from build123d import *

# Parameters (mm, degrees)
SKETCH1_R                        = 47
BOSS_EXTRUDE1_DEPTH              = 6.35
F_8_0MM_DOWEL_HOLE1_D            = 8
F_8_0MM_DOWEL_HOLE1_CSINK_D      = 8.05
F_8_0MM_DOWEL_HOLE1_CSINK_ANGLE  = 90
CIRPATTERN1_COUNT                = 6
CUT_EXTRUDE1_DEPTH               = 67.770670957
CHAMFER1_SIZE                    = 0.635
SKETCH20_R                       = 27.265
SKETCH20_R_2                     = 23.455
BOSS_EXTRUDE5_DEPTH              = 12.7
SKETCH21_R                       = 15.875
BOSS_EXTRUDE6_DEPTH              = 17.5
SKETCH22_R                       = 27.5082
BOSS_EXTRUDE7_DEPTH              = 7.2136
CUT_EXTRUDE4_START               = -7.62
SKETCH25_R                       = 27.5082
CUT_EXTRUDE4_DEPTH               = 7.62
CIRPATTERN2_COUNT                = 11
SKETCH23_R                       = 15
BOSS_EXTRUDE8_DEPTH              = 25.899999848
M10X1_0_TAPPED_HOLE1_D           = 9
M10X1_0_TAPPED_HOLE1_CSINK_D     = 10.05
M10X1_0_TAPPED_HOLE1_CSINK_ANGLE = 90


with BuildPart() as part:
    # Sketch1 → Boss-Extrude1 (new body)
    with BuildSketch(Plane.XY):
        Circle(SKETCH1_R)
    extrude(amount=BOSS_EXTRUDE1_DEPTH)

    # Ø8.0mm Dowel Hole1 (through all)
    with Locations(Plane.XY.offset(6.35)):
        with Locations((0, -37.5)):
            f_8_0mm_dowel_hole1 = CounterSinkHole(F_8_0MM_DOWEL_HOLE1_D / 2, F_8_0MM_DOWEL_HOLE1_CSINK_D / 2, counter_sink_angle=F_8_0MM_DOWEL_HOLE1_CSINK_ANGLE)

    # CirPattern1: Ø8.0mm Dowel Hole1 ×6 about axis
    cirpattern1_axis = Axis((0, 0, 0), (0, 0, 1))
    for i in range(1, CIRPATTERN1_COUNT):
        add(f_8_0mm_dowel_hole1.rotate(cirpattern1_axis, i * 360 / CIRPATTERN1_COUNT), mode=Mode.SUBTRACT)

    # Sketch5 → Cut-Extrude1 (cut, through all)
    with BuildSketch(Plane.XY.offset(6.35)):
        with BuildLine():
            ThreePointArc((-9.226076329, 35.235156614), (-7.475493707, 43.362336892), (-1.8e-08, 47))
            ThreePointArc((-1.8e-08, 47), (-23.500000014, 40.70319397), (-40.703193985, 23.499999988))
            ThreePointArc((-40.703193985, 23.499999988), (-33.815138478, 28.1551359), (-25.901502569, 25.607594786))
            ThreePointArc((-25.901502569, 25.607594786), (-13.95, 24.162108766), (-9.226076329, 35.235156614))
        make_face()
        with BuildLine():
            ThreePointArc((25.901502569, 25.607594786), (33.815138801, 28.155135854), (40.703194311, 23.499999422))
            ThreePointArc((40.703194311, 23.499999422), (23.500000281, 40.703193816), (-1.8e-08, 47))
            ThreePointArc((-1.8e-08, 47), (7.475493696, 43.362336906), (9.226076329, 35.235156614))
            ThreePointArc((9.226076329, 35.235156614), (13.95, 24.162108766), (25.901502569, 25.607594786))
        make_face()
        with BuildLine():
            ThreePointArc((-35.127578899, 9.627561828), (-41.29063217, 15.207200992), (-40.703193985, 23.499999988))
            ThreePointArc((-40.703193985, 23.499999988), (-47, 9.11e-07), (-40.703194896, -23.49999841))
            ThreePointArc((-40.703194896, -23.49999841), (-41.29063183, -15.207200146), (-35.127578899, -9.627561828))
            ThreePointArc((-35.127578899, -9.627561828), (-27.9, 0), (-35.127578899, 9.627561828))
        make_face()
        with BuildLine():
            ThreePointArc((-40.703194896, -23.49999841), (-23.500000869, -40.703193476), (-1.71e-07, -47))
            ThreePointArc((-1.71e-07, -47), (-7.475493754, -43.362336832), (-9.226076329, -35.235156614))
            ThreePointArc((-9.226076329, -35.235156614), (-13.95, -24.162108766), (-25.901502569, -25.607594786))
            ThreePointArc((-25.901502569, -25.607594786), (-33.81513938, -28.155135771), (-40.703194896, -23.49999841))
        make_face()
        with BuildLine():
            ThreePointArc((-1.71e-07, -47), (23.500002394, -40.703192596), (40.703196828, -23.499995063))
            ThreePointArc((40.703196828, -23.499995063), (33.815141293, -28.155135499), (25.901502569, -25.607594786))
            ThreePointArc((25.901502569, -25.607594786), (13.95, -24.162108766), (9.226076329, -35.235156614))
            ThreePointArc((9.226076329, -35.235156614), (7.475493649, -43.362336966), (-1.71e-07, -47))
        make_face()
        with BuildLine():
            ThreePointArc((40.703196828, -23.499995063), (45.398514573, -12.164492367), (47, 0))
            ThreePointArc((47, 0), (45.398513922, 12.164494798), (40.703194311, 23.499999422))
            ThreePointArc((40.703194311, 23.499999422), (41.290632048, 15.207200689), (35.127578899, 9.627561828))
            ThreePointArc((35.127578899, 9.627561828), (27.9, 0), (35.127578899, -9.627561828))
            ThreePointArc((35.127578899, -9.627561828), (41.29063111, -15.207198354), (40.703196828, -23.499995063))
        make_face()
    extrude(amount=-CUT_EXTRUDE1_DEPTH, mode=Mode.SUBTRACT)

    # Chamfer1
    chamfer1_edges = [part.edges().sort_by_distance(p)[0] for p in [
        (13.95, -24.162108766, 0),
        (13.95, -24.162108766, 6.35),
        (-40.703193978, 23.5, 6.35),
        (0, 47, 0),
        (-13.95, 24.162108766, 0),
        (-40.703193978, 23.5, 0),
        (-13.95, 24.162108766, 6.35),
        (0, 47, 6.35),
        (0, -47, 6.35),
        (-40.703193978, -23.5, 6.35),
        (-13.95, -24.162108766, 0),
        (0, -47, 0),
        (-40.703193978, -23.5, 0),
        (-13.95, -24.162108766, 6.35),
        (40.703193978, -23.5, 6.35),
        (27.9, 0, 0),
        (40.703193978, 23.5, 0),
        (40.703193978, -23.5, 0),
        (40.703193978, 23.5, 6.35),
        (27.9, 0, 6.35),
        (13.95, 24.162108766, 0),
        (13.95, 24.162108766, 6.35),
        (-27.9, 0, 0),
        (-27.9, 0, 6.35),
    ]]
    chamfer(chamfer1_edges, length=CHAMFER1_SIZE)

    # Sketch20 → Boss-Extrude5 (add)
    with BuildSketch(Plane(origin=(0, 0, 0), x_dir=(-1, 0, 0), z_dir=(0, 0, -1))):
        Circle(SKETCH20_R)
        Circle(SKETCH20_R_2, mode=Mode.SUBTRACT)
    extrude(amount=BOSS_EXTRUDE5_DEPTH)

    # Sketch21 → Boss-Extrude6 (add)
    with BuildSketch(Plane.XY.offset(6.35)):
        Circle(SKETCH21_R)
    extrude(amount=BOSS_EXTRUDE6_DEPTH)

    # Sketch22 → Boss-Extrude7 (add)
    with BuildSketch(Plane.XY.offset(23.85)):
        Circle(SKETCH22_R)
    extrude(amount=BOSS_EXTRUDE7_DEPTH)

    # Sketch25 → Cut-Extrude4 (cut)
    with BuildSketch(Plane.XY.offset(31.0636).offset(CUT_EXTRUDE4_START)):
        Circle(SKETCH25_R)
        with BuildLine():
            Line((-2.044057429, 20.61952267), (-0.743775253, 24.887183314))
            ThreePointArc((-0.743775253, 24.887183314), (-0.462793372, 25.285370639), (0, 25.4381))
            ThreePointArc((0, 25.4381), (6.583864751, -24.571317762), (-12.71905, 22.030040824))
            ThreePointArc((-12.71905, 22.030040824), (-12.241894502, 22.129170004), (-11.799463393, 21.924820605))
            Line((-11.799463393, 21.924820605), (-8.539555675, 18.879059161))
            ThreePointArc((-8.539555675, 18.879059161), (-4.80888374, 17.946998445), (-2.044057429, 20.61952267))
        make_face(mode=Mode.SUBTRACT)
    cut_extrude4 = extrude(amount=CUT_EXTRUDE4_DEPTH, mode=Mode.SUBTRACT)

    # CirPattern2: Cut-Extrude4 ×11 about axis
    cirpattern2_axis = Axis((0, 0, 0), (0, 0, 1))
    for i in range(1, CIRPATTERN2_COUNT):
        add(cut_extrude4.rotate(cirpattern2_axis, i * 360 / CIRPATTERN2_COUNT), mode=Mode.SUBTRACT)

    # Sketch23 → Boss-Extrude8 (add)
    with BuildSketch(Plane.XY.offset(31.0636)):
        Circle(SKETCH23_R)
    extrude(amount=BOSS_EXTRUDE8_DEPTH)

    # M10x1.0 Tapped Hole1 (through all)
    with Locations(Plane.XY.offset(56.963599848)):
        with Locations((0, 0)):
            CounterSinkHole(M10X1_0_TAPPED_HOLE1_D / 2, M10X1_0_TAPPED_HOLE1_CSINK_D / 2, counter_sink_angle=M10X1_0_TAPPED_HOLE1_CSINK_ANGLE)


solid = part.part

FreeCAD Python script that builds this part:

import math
import FreeCAD as App
import Part
import Sketcher
Q = App.Units.Quantity


def edges_at(feature, points):
    """Names of the edges that pass closest to the given points."""
    edges = feature.Shape.Edges
    near = lambda p: min(range(len(edges)), key=lambda i: edges[i].distToShape(Part.Vertex(*p))[0])
    return sorted({f"Edge{near(p) + 1}" for p in points})

doc = App.newDocument("Part")
body = doc.addObject("PartDesign::Body", "Body")

# Sketch on XY plane
sketch1 = doc.addObject("Sketcher::SketchObject", "Sketch")
body.addObject(sketch1)
sketch1.AttachmentSupport = (doc.XY_Plane, [""])
sketch1.MapMode = "FlatFace"
sketch1.addGeometry(Part.Circle(App.Vector(0, 0, 0), App.Vector(0, 0, 1), 47), False)
sketch1.addConstraint(Sketcher.Constraint("Coincident", 0, 3, -1, 1))
sketch1.addConstraint(Sketcher.Constraint("Diameter", 0, 94.0))
pad1 = doc.addObject("PartDesign::Pad", "Pad")
body.addObject(pad1)
pad1.Profile = sketch1
pad1.Length = Q("0.25 in")

# Sketch on XY plane
sketch2 = doc.addObject("Sketcher::SketchObject", "Sketch001")
body.addObject(sketch2)
sketch2.AttachmentSupport = (doc.XY_Plane, [""])
sketch2.MapMode = "FlatFace"
sketch2.AttachmentOffset = App.Placement(App.Vector(0, 0, 0.25 * 25.4), App.Rotation())
sketch2.addGeometry(Part.Circle(App.Vector(0, -37.5, 0), App.Vector(0, 0, 1), 4), False)
sketch2.addConstraint(Sketcher.Constraint("PointOnObject", 0, 3, -2))
sketch2.addConstraint(Sketcher.Constraint("Diameter", 0, 8.0))
sketch2.addConstraint(Sketcher.Constraint("DistanceY", 0, 3, -1, 1, 37.5))
doc.recompute()
hole = doc.addObject("PartDesign::Hole", "Hole")
body.addObject(hole)
hole.Profile = sketch2
hole.ThreadType = "None"
hole.Diameter = 8
hole.DepthType = "ThroughAll"
hole.HoleCutType = "Countersink"
hole.HoleCutDiameter = 8.05
hole.HoleCutCountersinkAngle = 90
doc.recompute()

polarpattern = doc.addObject("PartDesign::PolarPattern", "PolarPattern")
body.addObject(polarpattern)
polarpattern.Originals = [hole]
polarpattern.Axis = (doc.Z_Axis, [""])
polarpattern.Angle = 360
polarpattern.Occurrences = 6
body.Tip = polarpattern

# Sketch on XY plane
sketch3 = doc.addObject("Sketcher::SketchObject", "Sketch002")
body.addObject(sketch3)
sketch3.AttachmentSupport = (doc.XY_Plane, [""])
sketch3.MapMode = "FlatFace"
sketch3.AttachmentOffset = App.Placement(App.Vector(0, 0, 0.25 * 25.4), App.Rotation())
sketch3.addGeometry(Part.ArcOfCircle(Part.Circle(App.Vector(0, 37.5, 0), App.Vector(0, 0, 1), 9.5), math.radians(90), math.radians(193.792396)), False)
sketch3.addGeometry(Part.ArcOfCircle(Part.Circle(App.Vector(0, 0, 0), App.Vector(0, 0, 1), 47), math.radians(90), math.radians(150)), False)
sketch3.addGeometry(Part.ArcOfCircle(Part.Circle(App.Vector(-32.475953, 18.75, 0), App.Vector(0, 0, 1), 9.5), math.radians(46.207604), math.radians(150)), False)
sketch3.addGeometry(Part.ArcOfCircle(Part.Circle(App.Vector(-18.963015, 32.844905, 0), App.Vector(0, 0, 1), 10.02603), math.radians(-133.792396), math.radians(13.792396)), False)
sketch3.addGeometry(Part.ArcOfCircle(Part.Circle(App.Vector(32.475953, 18.75, 0), App.Vector(0, 0, 1), 9.5), math.radians(29.999996), math.radians(133.792396)), False)
sketch3.addGeometry(Part.ArcOfCircle(Part.Circle(App.Vector(0, 0, 0), App.Vector(0, 0, 1), 47), math.radians(29.999999), math.radians(90)), False)
sketch3.addGeometry(Part.ArcOfCircle(Part.Circle(App.Vector(0, 37.5, 0), App.Vector(0, 0, 1), 9.5), math.radians(-13.792396), math.radians(90)), False)
sketch3.addGeometry(Part.ArcOfCircle(Part.Circle(App.Vector(18.963015, 32.844905, 0), App.Vector(0, 0, 1), 10.02603), math.radians(166.207604), math.radians(313.792396)), False)
sketch3.addGeometry(Part.ArcOfCircle(Part.Circle(App.Vector(-32.475953, 18.75, 0), App.Vector(0, 0, 1), 9.5), math.radians(150), math.radians(253.792396)), False)
sketch3.addGeometry(Part.ArcOfCircle(Part.Circle(App.Vector(0, 0, 0), App.Vector(0, 0, 1), 47), math.radians(150), math.radians(209.999998)), False)
sketch3.addGeometry(Part.ArcOfCircle(Part.Circle(App.Vector(-32.475953, -18.75, 0), App.Vector(0, 0, 1), 9.5), math.radians(106.207604), math.radians(209.999989)), False)
sketch3.addGeometry(Part.ArcOfCircle(Part.Circle(App.Vector(-37.92603, 0, 0), App.Vector(0, 0, 1), 10.02603), math.radians(-73.792396), math.radians(73.792396)), False)
sketch3.addGeometry(Part.ArcOfCircle(Part.Circle(App.Vector(0, 0, 0), App.Vector(0, 0, 1), 47), math.radians(-150.000002), math.radians(-90)), False)
sketch3.addGeometry(Part.ArcOfCircle(Part.Circle(App.Vector(0, -37.5, 0), App.Vector(0, 0, 1), 9.5), math.radians(166.207604), math.radians(269.999999)), False)
sketch3.addGeometry(Part.ArcOfCircle(Part.Circle(App.Vector(-18.963015, -32.844905, 0), App.Vector(0, 0, 1), 10.02603), math.radians(-13.792396), math.radians(133.792396)), False)
sketch3.addGeometry(Part.ArcOfCircle(Part.Circle(App.Vector(-32.475953, -18.75, 0), App.Vector(0, 0, 1), 9.5), math.radians(-150.000011), math.radians(-46.207604)), False)
sketch3.addGeometry(Part.ArcOfCircle(Part.Circle(App.Vector(0, 0, 0), App.Vector(0, 0, 1), 47), math.radians(-90), math.radians(-29.999993)), False)
sketch3.addGeometry(Part.ArcOfCircle(Part.Circle(App.Vector(32.475953, -18.75, 0), App.Vector(0, 0, 1), 9.5), math.radians(-133.792396), math.radians(-29.999966)), False)
sketch3.addGeometry(Part.ArcOfCircle(Part.Circle(App.Vector(18.963015, -32.844905, 0), App.Vector(0, 0, 1), 10.02603), math.radians(46.207604), math.radians(193.792396)), False)
sketch3.addGeometry(Part.ArcOfCircle(Part.Circle(App.Vector(0, -37.5, 0), App.Vector(0, 0, 1), 9.5), math.radians(-90.000001), math.radians(13.792396)), False)
sketch3.addGeometry(Part.ArcOfCircle(Part.Circle(App.Vector(0, 0, 0), App.Vector(0, 0, 1), 47), math.radians(-29.999993), math.radians(0)), False)
sketch3.addGeometry(Part.ArcOfCircle(Part.Circle(App.Vector(0, 0, 0), App.Vector(0, 0, 1), 47), math.radians(0), math.radians(29.999999)), False)
sketch3.addGeometry(Part.ArcOfCircle(Part.Circle(App.Vector(32.475953, 18.75, 0), App.Vector(0, 0, 1), 9.5), math.radians(-73.792396), math.radians(29.999996)), False)
sketch3.addGeometry(Part.ArcOfCircle(Part.Circle(App.Vector(37.92603, 0, 0), App.Vector(0, 0, 1), 10.02603), math.radians(106.207604), math.radians(253.792396)), False)
sketch3.addGeometry(Part.ArcOfCircle(Part.Circle(App.Vector(32.475953, -18.75, 0), App.Vector(0, 0, 1), 9.5), math.radians(-29.999966), math.radians(73.792396)), False)
sketch3.addConstraint(Sketcher.Constraint("Tangent", 0, 1, 1, 1))
sketch3.addConstraint(Sketcher.Constraint("Tangent", 1, 2, 2, 2))
sketch3.addConstraint(Sketcher.Constraint("Tangent", 2, 1, 3, 1))
sketch3.addConstraint(Sketcher.Constraint("Tangent", 3, 2, 0, 2))
sketch3.addConstraint(Sketcher.Constraint("Tangent", 4, 1, 5, 1))
sketch3.addConstraint(Sketcher.Constraint("Tangent", 5, 2, 6, 2))
sketch3.addConstraint(Sketcher.Constraint("Tangent", 6, 1, 7, 1))
sketch3.addConstraint(Sketcher.Constraint("Tangent", 7, 2, 4, 2))
sketch3.addConstraint(Sketcher.Constraint("Tangent", 8, 1, 9, 1))
sketch3.addConstraint(Sketcher.Constraint("Tangent", 9, 2, 10, 2))
sketch3.addConstraint(Sketcher.Constraint("Tangent", 10, 1, 11, 1))
sketch3.addConstraint(Sketcher.Constraint("Tangent", 11, 2, 8, 2))
sketch3.addConstraint(Sketcher.Constraint("Tangent", 12, 2, 13, 2))
sketch3.addConstraint(Sketcher.Constraint("Tangent", 13, 1, 14, 1))
sketch3.addConstraint(Sketcher.Constraint("Tangent", 14, 2, 15, 2))
sketch3.addConstraint(Sketcher.Constraint("Tangent", 15, 1, 12, 1))
sketch3.addConstraint(Sketcher.Constraint("Tangent", 16, 2, 17, 2))
sketch3.addConstraint(Sketcher.Constraint("Tangent", 17, 1, 18, 1))
sketch3.addConstraint(Sketcher.Constraint("Tangent", 18, 2, 19, 2))
sketch3.addConstraint(Sketcher.Constraint("Tangent", 19, 1, 16, 1))
sketch3.addConstraint(Sketcher.Constraint("Tangent", 20, 2, 21, 1))
sketch3.addConstraint(Sketcher.Constraint("Tangent", 21, 2, 22, 2))
sketch3.addConstraint(Sketcher.Constraint("Tangent", 22, 1, 23, 1))
sketch3.addConstraint(Sketcher.Constraint("Tangent", 23, 2, 24, 2))
sketch3.addConstraint(Sketcher.Constraint("Tangent", 24, 1, 20, 1))
sketch3.addConstraint(Sketcher.Constraint("Coincident", 1, 3, -1, 1))
sketch3.addConstraint(Sketcher.Constraint("Coincident", 5, 3, -1, 1))
sketch3.addConstraint(Sketcher.Constraint("Coincident", 9, 3, -1, 1))
sketch3.addConstraint(Sketcher.Constraint("Coincident", 12, 3, -1, 1))
sketch3.addConstraint(Sketcher.Constraint("Coincident", 16, 3, -1, 1))
sketch3.addConstraint(Sketcher.Constraint("Coincident", 20, 3, -1, 1))
sketch3.addConstraint(Sketcher.Constraint("Coincident", 6, 3, 0, 3))
sketch3.addConstraint(Sketcher.Constraint("Coincident", 8, 3, 2, 3))
sketch3.addConstraint(Sketcher.Constraint("Coincident", 15, 3, 10, 3))
sketch3.addConstraint(Sketcher.Constraint("Coincident", 19, 3, 13, 3))
sketch3.addConstraint(Sketcher.Constraint("Coincident", 22, 3, 4, 3))
sketch3.addConstraint(Sketcher.Constraint("Coincident", 24, 3, 17, 3))
sketch3.addConstraint(Sketcher.Constraint("Coincident", 21, 2, 4, 1))
sketch3.addConstraint(Sketcher.Constraint("Equal", 0, 2))
sketch3.addConstraint(Sketcher.Constraint("Equal", 2, 4))
sketch3.addConstraint(Sketcher.Constraint("Equal", 1, 5))
sketch3.addConstraint(Sketcher.Constraint("Equal", 3, 7))
sketch3.addConstraint(Sketcher.Constraint("Equal", 6, 8))
sketch3.addConstraint(Sketcher.Constraint("Equal", 8, 10))
sketch3.addConstraint(Sketcher.Constraint("Equal", 7, 11))
sketch3.addConstraint(Sketcher.Constraint("Equal", 9, 12))
sketch3.addConstraint(Sketcher.Constraint("Equal", 10, 13))
sketch3.addConstraint(Sketcher.Constraint("Equal", 11, 14))
sketch3.addConstraint(Sketcher.Constraint("Equal", 12, 16))
sketch3.addConstraint(Sketcher.Constraint("Equal", 15, 17))
sketch3.addConstraint(Sketcher.Constraint("Equal", 14, 18))
sketch3.addConstraint(Sketcher.Constraint("Equal", 18, 23))
sketch3.addConstraint(Sketcher.Constraint("Symmetric", 7, 3, 14, 3, -1, 1))
sketch3.addConstraint(Sketcher.Constraint("Symmetric", 3, 3, 7, 3, -2))
sketch3.addConstraint(Sketcher.Constraint("PointOnObject", 23, 3, -1))
sketch3.addConstraint(Sketcher.Constraint("PointOnObject", 20, 2, -1))
sketch3.addConstraint(Sketcher.Constraint("Radius", 0, 9.5))
sketch3.addConstraint(Sketcher.Constraint("Radius", 1, 47.0))
sketch3.addConstraint(Sketcher.Constraint("Radius", 3, 10.02603))
sketch3.addConstraint(Sketcher.Constraint("DistanceX", 10, 1, 14, 3, Q("0.6364002 in")))
pocket1 = doc.addObject("PartDesign::Pocket", "Pocket")
body.addObject(pocket1)
pocket1.Profile = sketch3
pocket1.Type = "ThroughAll"
doc.recompute()

chamfer = doc.addObject("PartDesign::Chamfer", "Chamfer")
body.addObject(chamfer)
chamfer.Base = (pocket1, edges_at(pocket1, [
    (13.95, -24.162, 0),
    (13.95, -24.162, 6.35),
    (-41.291, 15.207, 6.35),
    (7.475, 43.362, 0),
    (-13.95, 24.162, 0),
    (-33.815, 28.155, 0),
    (-13.95, 24.162, 6.35),
    (-7.475, 43.362, 6.35),
    (7.475, -43.362, 6.35),
    (-33.815, -28.155, 6.35),
    (-13.95, -24.162, 0),
    (7.475, -43.362, 0),
    (-33.815, -28.155, 0),
    (-13.95, -24.162, 6.35),
    (33.815, -28.155, 6.35),
    (27.9, 0, 0),
    (33.815, 28.155, 0),
    (33.815, -28.155, 0),
    (33.815, 28.155, 6.35),
    (27.9, 0, 6.35),
    (13.95, 24.162, 0),
    (13.95, 24.162, 6.35),
    (-27.9, 0, 0),
    (-27.9, 0, 6.35),
]))
chamfer.Size = Q("0.025 in")

# Sketch on XY plane
sketch4 = doc.addObject("Sketcher::SketchObject", "Sketch003")
body.addObject(sketch4)
sketch4.AttachmentSupport = (doc.XY_Plane, [""])
sketch4.MapMode = "FlatFace"
sketch4.addGeometry(Part.Circle(App.Vector(0, 0, 0), App.Vector(0, 0, 1), 27.265), False)
sketch4.addGeometry(Part.Circle(App.Vector(0, 0, 0), App.Vector(0, 0, 1), 23.455), False)
sketch4.addConstraint(Sketcher.Constraint("Coincident", 0, 3, -1, 1))
sketch4.addConstraint(Sketcher.Constraint("Coincident", 1, 3, -1, 1))
sketch4.addConstraint(Sketcher.Constraint("Diameter", 0, 54.53))
sketch4.addConstraint(Sketcher.Constraint("Diameter", 1, 46.91))
pad2 = doc.addObject("PartDesign::Pad", "Pad001")
body.addObject(pad2)
pad2.Profile = sketch4
pad2.Length = Q("0.5 in")
pad2.Reversed = True

# Sketch on XY plane
sketch5 = doc.addObject("Sketcher::SketchObject", "Sketch004")
body.addObject(sketch5)
sketch5.AttachmentSupport = (doc.XY_Plane, [""])
sketch5.MapMode = "FlatFace"
sketch5.AttachmentOffset = App.Placement(App.Vector(0, 0, 0.25 * 25.4), App.Rotation())
sketch5.addGeometry(Part.Circle(App.Vector(0, 0, 0), App.Vector(0, 0, 1), 15.875), False)
sketch5.addConstraint(Sketcher.Constraint("Coincident", 0, 3, -1, 1))
sketch5.addConstraint(Sketcher.Constraint("Diameter", 0, Q("1.25 in")))
pad3 = doc.addObject("PartDesign::Pad", "Pad002")
body.addObject(pad3)
pad3.Profile = sketch5
pad3.Length = 17.5

# Sketch on XY plane
sketch6 = doc.addObject("Sketcher::SketchObject", "Sketch005")
body.addObject(sketch6)
sketch6.AttachmentSupport = (doc.XY_Plane, [""])
sketch6.MapMode = "FlatFace"
sketch6.AttachmentOffset = App.Placement(App.Vector(0, 0, 23.85), App.Rotation())
sketch6.addGeometry(Part.Circle(App.Vector(0, 0, 0), App.Vector(0, 0, 1), 27.5082), False)
sketch6.addConstraint(Sketcher.Constraint("Coincident", 0, 3, -1, 1))
sketch6.addConstraint(Sketcher.Constraint("Diameter", 0, Q("2.166 in")))
pad4 = doc.addObject("PartDesign::Pad", "Pad003")
body.addObject(pad4)
pad4.Profile = sketch6
pad4.Length = Q("0.284 in")

# Sketch on XY plane
sketch7 = doc.addObject("Sketcher::SketchObject", "Sketch006")
body.addObject(sketch7)
sketch7.AttachmentSupport = (doc.XY_Plane, [""])
sketch7.MapMode = "FlatFace"
sketch7.AttachmentOffset = App.Placement(App.Vector(0, 0, 23.4436), App.Rotation())
sketch7.addGeometry(Part.Circle(App.Vector(0, 0, 0), App.Vector(0, 0, 1), 27.5082), False)
sketch7.addGeometry(Part.ArcOfCircle(Part.Circle(App.Vector(-5.834428, 21.774383, 0), App.Vector(0, 0, 1), 3.9624), math.radians(-133.054931), math.radians(-16.945069)), False)
sketch7.addGeometry(Part.LineSegment(App.Vector(-2.044057, 20.619523, 0), App.Vector(-0.743775, 24.887183, 0)), False)
sketch7.addGeometry(Part.ArcOfCircle(Part.Circle(App.Vector(0, 24.660568, 0), App.Vector(0, 0, 1), 0.777532), math.radians(90), math.radians(163.054931)), False)
sketch7.addGeometry(Part.ArcOfCircle(Part.Circle(App.Vector(0, 0, 0), App.Vector(0, 0, 1), 25.4381), math.radians(120), math.radians(450)), False)
sketch7.addGeometry(Part.ArcOfCircle(Part.Circle(App.Vector(-12.330284, 21.356678, 0), App.Vector(0, 0, 1), 0.777532), math.radians(46.945069), math.radians(120)), False)
sketch7.addGeometry(Part.LineSegment(App.Vector(-11.799463, 21.924821, 0), App.Vector(-8.539556, 18.879059, 0)), False)
sketch7.addConstraint(Sketcher.Constraint("Tangent", 1, 2, 2, 1))
sketch7.addConstraint(Sketcher.Constraint("Tangent", 2, 2, 3, 2))
sketch7.addConstraint(Sketcher.Constraint("Tangent", 3, 1, 4, 2))
sketch7.addConstraint(Sketcher.Constraint("Tangent", 4, 1, 5, 2))
sketch7.addConstraint(Sketcher.Constraint("Tangent", 5, 1, 6, 1))
sketch7.addConstraint(Sketcher.Constraint("Tangent", 6, 2, 1, 1))
sketch7.addConstraint(Sketcher.Constraint("Coincident", 0, 3, -1, 1))
sketch7.addConstraint(Sketcher.Constraint("Coincident", 4, 3, -1, 1))
sketch7.addConstraint(Sketcher.Constraint("Equal", 3, 5))
sketch7.addConstraint(Sketcher.Constraint("PointOnObject", 3, 3, -2))
sketch7.addConstraint(Sketcher.Constraint("Equal", 2, 6))
sketch7.addConstraint(Sketcher.Constraint("Diameter", 0, Q("2.166 in")))
sketch7.addConstraint(Sketcher.Constraint("Radius", 1, Q("0.156 in")))
sketch7.addConstraint(Sketcher.Constraint("Radius", 4, Q("1.0015 in")))
sketch7.addConstraint(Sketcher.Constraint("Radius", 3, 0.777532))
sketch7.addConstraint(Sketcher.Constraint("DistanceY", 1, 3, 2, 2, 3.1128))
sketch7.addConstraint(Sketcher.Constraint("DistanceX", 6, 2, 1, 2, 6.495498))
pocket2 = doc.addObject("PartDesign::Pocket", "Pocket001")
body.addObject(pocket2)
pocket2.Profile = sketch7
pocket2.Length = Q("0.3 in")
pocket2.Reversed = True
doc.recompute()

polarpattern2 = doc.addObject("PartDesign::PolarPattern", "PolarPattern001")
body.addObject(polarpattern2)
polarpattern2.Originals = [pocket2]
polarpattern2.Axis = (doc.Z_Axis, [""])
polarpattern2.Angle = 360
polarpattern2.Occurrences = 11
body.Tip = polarpattern2

# Sketch on XY plane
sketch8 = doc.addObject("Sketcher::SketchObject", "Sketch007")
body.addObject(sketch8)
sketch8.AttachmentSupport = (doc.XY_Plane, [""])
sketch8.MapMode = "FlatFace"
sketch8.AttachmentOffset = App.Placement(App.Vector(0, 0, 31.0636), App.Rotation())
sketch8.addGeometry(Part.Circle(App.Vector(0, 0, 0), App.Vector(0, 0, 1), 15), False)
sketch8.addConstraint(Sketcher.Constraint("Coincident", 0, 3, -1, 1))
sketch8.addConstraint(Sketcher.Constraint("Diameter", 0, 30.0))
pad5 = doc.addObject("PartDesign::Pad", "Pad004")
body.addObject(pad5)
pad5.Profile = sketch8
pad5.Length = 25.9

# Sketch on XY plane
sketch9 = doc.addObject("Sketcher::SketchObject", "Sketch008")
body.addObject(sketch9)
sketch9.AttachmentSupport = (doc.XY_Plane, [""])
sketch9.MapMode = "FlatFace"
sketch9.AttachmentOffset = App.Placement(App.Vector(0, 0, 56.9636), App.Rotation())
sketch9.addGeometry(Part.Circle(App.Vector(0, 0, 0), App.Vector(0, 0, 1), 4.5), False)
sketch9.addConstraint(Sketcher.Constraint("Coincident", 0, 3, -1, 1))
sketch9.addConstraint(Sketcher.Constraint("Diameter", 0, 9.0))
doc.recompute()
hole2 = doc.addObject("PartDesign::Hole", "Hole001")
body.addObject(hole2)
hole2.Profile = sketch9
hole2.ThreadType = "None"
hole2.Diameter = 9
hole2.DepthType = "ThroughAll"
hole2.HoleCutType = "Countersink"
hole2.HoleCutDiameter = 10.05
hole2.HoleCutCountersinkAngle = 90

doc.recompute()
